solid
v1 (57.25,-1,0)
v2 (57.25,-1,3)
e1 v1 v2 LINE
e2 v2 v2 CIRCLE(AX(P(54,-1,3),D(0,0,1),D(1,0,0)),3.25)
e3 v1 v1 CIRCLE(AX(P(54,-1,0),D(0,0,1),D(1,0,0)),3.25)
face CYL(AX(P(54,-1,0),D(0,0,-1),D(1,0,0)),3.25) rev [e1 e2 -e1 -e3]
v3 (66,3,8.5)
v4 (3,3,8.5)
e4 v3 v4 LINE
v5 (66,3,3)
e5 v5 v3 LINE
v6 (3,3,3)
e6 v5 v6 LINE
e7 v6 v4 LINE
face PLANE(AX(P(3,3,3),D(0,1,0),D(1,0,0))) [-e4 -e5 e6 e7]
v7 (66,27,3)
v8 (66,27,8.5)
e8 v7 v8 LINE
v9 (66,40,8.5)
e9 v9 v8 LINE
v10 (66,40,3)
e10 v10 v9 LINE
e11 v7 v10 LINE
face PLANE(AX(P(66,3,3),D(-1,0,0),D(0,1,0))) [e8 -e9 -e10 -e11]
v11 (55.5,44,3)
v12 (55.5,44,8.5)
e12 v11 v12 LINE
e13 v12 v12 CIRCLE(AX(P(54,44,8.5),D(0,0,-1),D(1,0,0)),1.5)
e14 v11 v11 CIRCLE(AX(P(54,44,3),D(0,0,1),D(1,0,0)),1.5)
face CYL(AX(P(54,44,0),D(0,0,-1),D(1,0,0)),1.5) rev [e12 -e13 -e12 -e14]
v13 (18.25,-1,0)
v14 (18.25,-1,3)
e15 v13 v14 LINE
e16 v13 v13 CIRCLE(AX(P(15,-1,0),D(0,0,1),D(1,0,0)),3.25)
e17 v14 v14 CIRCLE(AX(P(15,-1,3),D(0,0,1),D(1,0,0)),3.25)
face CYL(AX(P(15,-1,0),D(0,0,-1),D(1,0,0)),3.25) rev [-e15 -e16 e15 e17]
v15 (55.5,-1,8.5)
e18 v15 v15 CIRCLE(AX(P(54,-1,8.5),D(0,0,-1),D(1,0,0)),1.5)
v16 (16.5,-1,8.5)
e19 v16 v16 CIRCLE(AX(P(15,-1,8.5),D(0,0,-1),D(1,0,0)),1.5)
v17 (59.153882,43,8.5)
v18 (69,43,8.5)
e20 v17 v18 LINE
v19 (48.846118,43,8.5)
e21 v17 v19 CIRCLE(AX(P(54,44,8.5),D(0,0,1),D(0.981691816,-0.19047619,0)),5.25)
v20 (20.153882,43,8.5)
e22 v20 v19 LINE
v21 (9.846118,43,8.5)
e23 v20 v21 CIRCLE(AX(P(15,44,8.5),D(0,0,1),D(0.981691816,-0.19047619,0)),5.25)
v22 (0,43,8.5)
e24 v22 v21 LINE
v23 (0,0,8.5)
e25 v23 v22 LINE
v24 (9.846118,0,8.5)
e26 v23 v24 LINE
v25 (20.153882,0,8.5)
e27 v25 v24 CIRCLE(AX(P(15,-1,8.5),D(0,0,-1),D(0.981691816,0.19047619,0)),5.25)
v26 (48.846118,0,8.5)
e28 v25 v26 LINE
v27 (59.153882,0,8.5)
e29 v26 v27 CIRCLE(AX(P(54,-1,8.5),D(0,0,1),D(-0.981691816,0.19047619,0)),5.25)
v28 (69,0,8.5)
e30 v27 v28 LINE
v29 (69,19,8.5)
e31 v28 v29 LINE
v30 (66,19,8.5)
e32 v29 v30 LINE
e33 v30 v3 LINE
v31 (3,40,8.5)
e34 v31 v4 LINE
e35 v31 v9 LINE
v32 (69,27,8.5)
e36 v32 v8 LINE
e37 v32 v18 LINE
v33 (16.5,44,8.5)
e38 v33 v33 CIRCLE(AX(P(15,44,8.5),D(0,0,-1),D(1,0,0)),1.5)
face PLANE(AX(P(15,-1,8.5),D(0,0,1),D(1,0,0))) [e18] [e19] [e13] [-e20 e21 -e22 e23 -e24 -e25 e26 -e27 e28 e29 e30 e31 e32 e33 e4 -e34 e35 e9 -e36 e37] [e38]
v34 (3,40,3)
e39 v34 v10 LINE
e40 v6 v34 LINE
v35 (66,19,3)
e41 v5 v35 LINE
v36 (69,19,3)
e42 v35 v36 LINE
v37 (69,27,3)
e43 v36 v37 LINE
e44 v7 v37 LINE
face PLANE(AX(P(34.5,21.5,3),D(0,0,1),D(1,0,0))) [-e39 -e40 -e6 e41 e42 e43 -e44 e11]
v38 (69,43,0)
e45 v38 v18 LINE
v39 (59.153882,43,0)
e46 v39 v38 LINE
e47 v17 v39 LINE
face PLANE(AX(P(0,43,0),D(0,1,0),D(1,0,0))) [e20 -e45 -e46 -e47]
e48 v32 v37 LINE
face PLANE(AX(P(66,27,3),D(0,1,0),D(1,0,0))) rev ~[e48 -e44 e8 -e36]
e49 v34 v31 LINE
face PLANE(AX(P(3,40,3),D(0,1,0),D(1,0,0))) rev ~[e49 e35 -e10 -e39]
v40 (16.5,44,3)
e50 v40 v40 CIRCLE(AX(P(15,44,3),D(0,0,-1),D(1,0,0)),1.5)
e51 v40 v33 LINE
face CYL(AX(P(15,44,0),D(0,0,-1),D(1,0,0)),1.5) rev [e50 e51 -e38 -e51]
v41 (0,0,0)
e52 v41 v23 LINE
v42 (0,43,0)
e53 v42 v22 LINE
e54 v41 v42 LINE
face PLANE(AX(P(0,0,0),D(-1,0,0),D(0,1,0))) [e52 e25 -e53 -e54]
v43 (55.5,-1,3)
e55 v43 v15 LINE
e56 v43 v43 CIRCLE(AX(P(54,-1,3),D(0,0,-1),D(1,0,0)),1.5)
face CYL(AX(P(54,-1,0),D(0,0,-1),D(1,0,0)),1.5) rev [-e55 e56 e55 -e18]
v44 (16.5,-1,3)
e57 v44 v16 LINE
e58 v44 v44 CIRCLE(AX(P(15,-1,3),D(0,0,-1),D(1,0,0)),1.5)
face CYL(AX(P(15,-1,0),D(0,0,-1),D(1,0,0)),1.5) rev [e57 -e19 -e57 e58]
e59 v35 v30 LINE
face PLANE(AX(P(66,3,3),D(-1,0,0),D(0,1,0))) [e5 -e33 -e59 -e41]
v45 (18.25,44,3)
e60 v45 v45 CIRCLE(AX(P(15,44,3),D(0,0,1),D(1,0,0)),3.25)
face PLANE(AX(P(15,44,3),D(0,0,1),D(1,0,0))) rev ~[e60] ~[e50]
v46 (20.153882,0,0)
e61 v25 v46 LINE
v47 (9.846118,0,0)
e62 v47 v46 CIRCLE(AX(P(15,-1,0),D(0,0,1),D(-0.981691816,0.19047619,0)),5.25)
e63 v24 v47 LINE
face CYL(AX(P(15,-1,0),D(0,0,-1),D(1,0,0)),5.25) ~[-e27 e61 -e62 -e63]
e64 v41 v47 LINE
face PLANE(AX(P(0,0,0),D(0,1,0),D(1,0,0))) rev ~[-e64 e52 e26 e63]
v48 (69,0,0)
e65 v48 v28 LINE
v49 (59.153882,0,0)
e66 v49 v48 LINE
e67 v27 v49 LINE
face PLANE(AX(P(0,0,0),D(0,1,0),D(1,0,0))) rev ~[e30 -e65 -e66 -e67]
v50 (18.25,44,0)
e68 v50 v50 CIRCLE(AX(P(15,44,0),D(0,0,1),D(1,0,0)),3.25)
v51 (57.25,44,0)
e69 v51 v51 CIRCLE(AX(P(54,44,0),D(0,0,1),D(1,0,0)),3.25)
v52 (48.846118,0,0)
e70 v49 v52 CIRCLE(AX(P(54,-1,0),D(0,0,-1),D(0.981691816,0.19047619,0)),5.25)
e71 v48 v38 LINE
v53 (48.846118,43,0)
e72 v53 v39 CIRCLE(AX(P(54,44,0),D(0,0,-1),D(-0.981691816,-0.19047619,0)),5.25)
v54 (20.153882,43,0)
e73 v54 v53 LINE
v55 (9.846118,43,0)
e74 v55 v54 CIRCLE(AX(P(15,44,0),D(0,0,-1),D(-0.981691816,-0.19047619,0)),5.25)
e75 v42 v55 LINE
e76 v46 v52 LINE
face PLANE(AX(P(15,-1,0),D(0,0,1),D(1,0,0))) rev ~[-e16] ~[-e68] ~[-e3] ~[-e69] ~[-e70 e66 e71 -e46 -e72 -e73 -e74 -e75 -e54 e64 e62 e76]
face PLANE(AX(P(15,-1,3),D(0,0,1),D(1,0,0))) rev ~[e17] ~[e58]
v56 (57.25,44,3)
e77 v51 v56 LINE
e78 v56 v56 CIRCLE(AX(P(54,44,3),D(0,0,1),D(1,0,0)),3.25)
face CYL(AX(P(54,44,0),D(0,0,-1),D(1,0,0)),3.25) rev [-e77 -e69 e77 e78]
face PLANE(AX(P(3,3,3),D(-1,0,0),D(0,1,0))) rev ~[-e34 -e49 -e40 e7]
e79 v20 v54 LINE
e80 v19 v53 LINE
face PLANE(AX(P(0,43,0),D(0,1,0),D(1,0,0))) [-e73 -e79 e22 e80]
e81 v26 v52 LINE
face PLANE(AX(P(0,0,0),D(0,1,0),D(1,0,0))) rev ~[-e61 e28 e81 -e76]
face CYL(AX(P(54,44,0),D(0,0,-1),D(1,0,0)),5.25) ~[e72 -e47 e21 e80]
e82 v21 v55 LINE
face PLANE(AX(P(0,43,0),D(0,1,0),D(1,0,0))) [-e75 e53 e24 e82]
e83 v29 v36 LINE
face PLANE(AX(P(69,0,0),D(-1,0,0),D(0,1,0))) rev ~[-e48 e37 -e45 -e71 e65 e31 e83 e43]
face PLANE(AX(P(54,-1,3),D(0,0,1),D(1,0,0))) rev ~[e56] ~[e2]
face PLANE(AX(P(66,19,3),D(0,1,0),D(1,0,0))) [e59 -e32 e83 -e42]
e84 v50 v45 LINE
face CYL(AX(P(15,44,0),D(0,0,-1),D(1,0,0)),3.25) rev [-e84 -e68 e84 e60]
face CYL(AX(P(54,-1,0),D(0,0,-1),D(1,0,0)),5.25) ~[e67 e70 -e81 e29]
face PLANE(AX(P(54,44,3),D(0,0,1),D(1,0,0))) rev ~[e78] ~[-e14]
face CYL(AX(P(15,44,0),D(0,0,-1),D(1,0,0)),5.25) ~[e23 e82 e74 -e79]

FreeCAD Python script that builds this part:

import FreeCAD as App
import Part
import Sketcher
Q = App.Units.Quantity


def add_polygon(sketch, points):
    """Adds a closed chain of lines whose ends are joined by coincident constraints."""
    first, n = sketch.GeometryCount, len(points)
    for a, b in zip(points, points[1:] + points[:1]):
        sketch.addGeometry(Part.LineSegment(App.Vector(*a, 0), App.Vector(*b, 0)), False)
    for i in range(n):
        sketch.addConstraint(Sketcher.Constraint("Coincident", first + i, 2, first + (i + 1) % n, 1))

doc = App.newDocument("Part")
params = doc.addObject("Spreadsheet::Sheet", "Params")
for row, (alias, value) in enumerate([
    ("sketch1_width", "63 mm"),
    ("sketch1_height", "37 mm"),
    ("pad1_length", "5.5 mm"),
    ("sketch2_width", "10 mm"),
    ("sketch2_height", "8 mm"),
    ("pad2_length", "5.5 mm"),
    ("sketch3_diameter", "6.5 mm"),
    ("pad3_length", "3 mm"),
    ("sketch4_diameter", "3 mm"),
    ("pad4_length", "8.5 mm"),
    ("sketch5_diameter", "10.5 mm"),
    ("pad5_length", "8.5 mm"),
    ("sketch6_diameter", "6.5 mm"),
    ("pad6_length", "3 mm"),
    ("sketch7_diameter", "3 mm"),
    ("pad7_length", "8.5 mm"),
    ("sketch8_diameter", "10.5 mm"),
    ("pad8_length", "8.5 mm"),
    ("sketch9_diameter", "6.5 mm"),
    ("pad9_length", "3 mm"),
    ("sketch10_diameter", "3 mm"),
    ("pad10_length", "8.5 mm"),
    ("sketch11_diameter", "10.5 mm"),
    ("pad11_length", "8.5 mm"),
    ("sketch12_diameter", "6.5 mm"),
    ("pad12_length", "3 mm"),
    ("sketch13_diameter", "3 mm"),
    ("pad13_length", "8.5 mm"),
    ("sketch14_diameter", "10.5 mm"),
    ("pad14_length", "8.5 mm"),
    ("sketch15_diameter", "6.5 mm"),
    ("pad15_length", "3 mm"),
    ("sketch16_diameter", "3 mm"),
    ("pad16_length", "8.5 mm"),
    ("sketch17_diameter", "6.5 mm"),
    ("pad17_length", "3 mm"),
    ("sketch18_diameter", "3 mm"),
    ("pad18_length", "8.5 mm"),
    ("sketch19_diameter", "6.5 mm"),
    ("pad19_length", "3 mm"),
    ("sketch20_diameter", "3 mm"),
    ("pad20_length", "8.5 mm"),
    ("sketch21_diameter", "6.5 mm"),
    ("pad21_length", "3 mm"),
    ("sketch22_diameter", "3 mm"),
    ("pad22_length", "8.5 mm"),
    ("sketch23_width", "63 mm"),
    ("sketch23_height", "37 mm"),
    ("pad23_length", "6 mm"),
    ("sketch24_width", "10 mm"),
    ("sketch24_height", "8 mm"),
    ("pad24_length", "6 mm"),
    ("sketch25_width", "69 mm"),
    ("sketch25_height", "43 mm"),
    ("pad25_length", "8.5 mm"),
], start=1):
    params.set(f"A{row}", alias)
    params.set(f"B{row}", "=" + value)
    params.setAlias(f"B{row}", alias)

body = doc.addObject("PartDesign::Body", "Body")

sketch1 = body.newObject("Sketcher::SketchObject", "Sketch")
sketch1.AttachmentSupport = (doc.getObject("XY_Plane"), [""])
sketch1.MapMode = "FlatFace"
add_polygon(sketch1, [(0, 37), (0, 0), (63, 0), (63, 37)])
sketch1.addConstraint([
    Sketcher.Constraint("Vertical", 0),
    Sketcher.Constraint("Horizontal", 1),
    Sketcher.Constraint("Vertical", 2),
    Sketcher.Constraint("Horizontal", 3),
    Sketcher.Constraint("Coincident", 0, 2, -1, 1),
    Sketcher.Constraint("DistanceX", 1, 1, 1, 2, Q("63 mm")),
    Sketcher.Constraint("DistanceY", 0, 2, 0, 1, Q("37 mm")),
])
sketch1.setExpression("Constraints[9]", "Params.sketch1_width")
sketch1.setExpression("Constraints[10]", "Params.sketch1_height")
pad1 = body.newObject("PartDesign::Pad", "Pad")
pad1.Profile = sketch1
pad1.setExpression("Length", "Params.pad1_length")
body2 = doc.addObject("PartDesign::Body", "Body001")

sketch2 = body2.newObject("Sketcher::SketchObject", "Sketch001")
sketch2.AttachmentSupport = (doc.getObject("XY_Plane001"), [""])
sketch2.MapMode = "FlatFace"
add_polygon(sketch2, [(63, 24), (63, 16), (73, 16), (73, 24)])
sketch2.addConstraint([
    Sketcher.Constraint("Vertical", 0),
    Sketcher.Constraint("Horizontal", 1),
    Sketcher.Constraint("Vertical", 2),
    Sketcher.Constraint("Horizontal", 3),
    Sketcher.Constraint("DistanceX", 1, 1, 1, 2, Q("10 mm")),
    Sketcher.Constraint("DistanceY", 0, 2, 0, 1, Q("8 mm")),
    Sketcher.Constraint("DistanceX", -1, 1, 0, 2, Q("63 mm")),
    Sketcher.Constraint("DistanceY", -1, 1, 0, 2, Q("16 mm")),
])
sketch2.setExpression("Constraints[8]", "Params.sketch2_width")
sketch2.setExpression("Constraints[9]", "Params.sketch2_height")
pad2 = body2.newObject("PartDesign::Pad", "Pad001")
pad2.Profile = sketch2
pad2.setExpression("Length", "Params.pad2_length")
doc.recompute()

boolean = body2.newObject("PartDesign::Boolean", "Boolean")
boolean.Type = "Fuse"
boolean.addObjects([body])
body3 = doc.addObject("PartDesign::Body", "Body002")
doc.recompute()

body2.Placement = App.Placement(App.Vector(3, 3, 3), App.Rotation(App.Vector(0, 0, 1), 0))
boolean2 = body3.newObject("PartDesign::Boolean", "Boolean001")
boolean2.Type = "Fuse"
boolean2.addObjects([body2])
body4 = doc.addObject("PartDesign::Body", "Body003")

sketch3 = body4.newObject("Sketcher::SketchObject", "Sketch002")
sketch3.AttachmentSupport = (doc.getObject("XY_Plane003"), [""])
sketch3.MapMode = "FlatFace"
sketch3.addGeometry(Part.Circle(App.Vector(15, -1, 0), App.Vector(0, 0, 1), 3.25), False)
sketch3.addConstraint([
    Sketcher.Constraint("Diameter", 0, Q("6.5 mm")),
    Sketcher.Constraint("DistanceX", -1, 1, 0, 3, Q("15 mm")),
    Sketcher.Constraint("DistanceY", 0, 3, -1, 1, Q("1 mm")),
])
sketch3.setExpression("Constraints[0]", "Params.sketch3_diameter")
pad3 = body4.newObject("PartDesign::Pad", "Pad002")
pad3.Profile = sketch3
pad3.setExpression("Length", "Params.pad3_length")
body5 = doc.addObject("PartDesign::Body", "Body004")

sketch4 = body5.newObject("Sketcher::SketchObject", "Sketch003")
sketch4.AttachmentSupport = (doc.getObject("XY_Plane004"), [""])
sketch4.MapMode = "FlatFace"
sketch4.addGeometry(Part.Circle(App.Vector(15, -1, 0), App.Vector(0, 0, 1), 1.5), False)
sketch4.addConstraint([
    Sketcher.Constraint("Diameter", 0, Q("3 mm")),
    Sketcher.Constraint("DistanceX", -1, 1, 0, 3, Q("15 mm")),
    Sketcher.Constraint("DistanceY", 0, 3, -1, 1, Q("1 mm")),
])
sketch4.setExpression("Constraints[0]", "Params.sketch4_diameter")
pad4 = body5.newObject("PartDesign::Pad", "Pad003")
pad4.Profile = sketch4
pad4.setExpression("Length", "Params.pad4_length")
doc.recompute()

boolean3 = body5.newObject("PartDesign::Boolean", "Boolean002")
boolean3.Type = "Fuse"
boolean3.addObjects([body4])
body6 = doc.addObject("PartDesign::Body", "Body005")

sketch5 = body6.newObject("Sketcher::SketchObject", "Sketch004")
sketch5.AttachmentSupport = (doc.getObject("XY_Plane005"), [""])
sketch5.MapMode = "FlatFace"
sketch5.addGeometry(Part.Circle(App.Vector(15, -1, 0), App.Vector(0, 0, 1), 5.25), False)
sketch5.addConstraint([
    Sketcher.Constraint("Diameter", 0, Q("10.5 mm")),
    Sketcher.Constraint("DistanceX", -1, 1, 0, 3, Q("15 mm")),
    Sketcher.Constraint("DistanceY", 0, 3, -1, 1, Q("1 mm")),
])
sketch5.setExpression("Constraints[0]", "Params.sketch5_diameter")
pad5 = body6.newObject("PartDesign::Pad", "Pad004")
pad5.Profile = sketch5
pad5.setExpression("Length", "Params.pad5_length")
doc.recompute()

boolean4 = body6.newObject("PartDesign::Boolean", "Boolean003")
boolean4.Type = "Cut"
boolean4.addObjects([body5])
body7 = doc.addObject("PartDesign::Body", "Body006")
doc.recompute()

body6.Placement = App.Placement(App.Vector(39, 45, 0), App.Rotation(App.Vector(0, 0, 1), 0))
boolean5 = body7.newObject("PartDesign::Boolean", "Boolean004")
boolean5.Type = "Fuse"
boolean5.addObjects([body6])
body8 = doc.addObject("PartDesign::Body", "Body007")

sketch6 = body8.newObject("Sketcher::SketchObject", "Sketch005")
sketch6.AttachmentSupport = (doc.getObject("XY_Plane007"), [""])
sketch6.MapMode = "FlatFace"
sketch6.addGeometry(Part.Circle(App.Vector(15, -1, 0), App.Vector(0, 0, 1), 3.25), False)
sketch6.addConstraint([
    Sketcher.Constraint("Diameter", 0, Q("6.5 mm")),
    Sketcher.Constraint("DistanceX", -1, 1, 0, 3, Q("15 mm")),
    Sketcher.Constraint("DistanceY", 0, 3, -1, 1, Q("1 mm")),
])
sketch6.setExpression("Constraints[0]", "Params.sketch6_diameter")
pad6 = body8.newObject("PartDesign::Pad", "Pad005")
pad6.Profile = sketch6
pad6.setExpression("Length", "Params.pad6_length")
body9 = doc.addObject("PartDesign::Body", "Body008")

sketch7 = body9.newObject("Sketcher::SketchObject", "Sketch006")
sketch7.AttachmentSupport = (doc.getObject("XY_Plane008"), [""])
sketch7.MapMode = "FlatFace"
sketch7.addGeometry(Part.Circle(App.Vector(15, -1, 0), App.Vector(0, 0, 1), 1.5), False)
sketch7.addConstraint([
    Sketcher.Constraint("Diameter", 0, Q("3 mm")),
    Sketcher.Constraint("DistanceX", -1, 1, 0, 3, Q("15 mm")),
    Sketcher.Constraint("DistanceY", 0, 3, -1, 1, Q("1 mm")),
])
sketch7.setExpression("Constraints[0]", "Params.sketch7_diameter")
pad7 = body9.newObject("PartDesign::Pad", "Pad006")
pad7.Profile = sketch7
pad7.setExpression("Length", "Params.pad7_length")
doc.recompute()

boolean6 = body9.newObject("PartDesign::Boolean", "Boolean005")
boolean6.Type = "Fuse"
boolean6.addObjects([body8])
body10 = doc.addObject("PartDesign::Body", "Body009")

sketch8 = body10.newObject("Sketcher::SketchObject", "Sketch007")
sketch8.AttachmentSupport = (doc.getObject("XY_Plane009"), [""])
sketch8.MapMode = "FlatFace"
sketch8.addGeometry(Part.Circle(App.Vector(15, -1, 0), App.Vector(0, 0, 1), 5.25), False)
sketch8.addConstraint([
    Sketcher.Constraint("Diameter", 0, Q("10.5 mm")),
    Sketcher.Constraint("DistanceX", -1, 1, 0, 3, Q("15 mm")),
    Sketcher.Constraint("DistanceY", 0, 3, -1, 1, Q("1 mm")),
])
sketch8.setExpression("Constraints[0]", "Params.sketch8_diameter")
pad8 = body10.newObject("PartDesign::Pad", "Pad007")
pad8.Profile = sketch8
pad8.setExpression("Length", "Params.pad8_length")
doc.recompute()

boolean7 = body10.newObject("PartDesign::Boolean", "Boolean006")
boolean7.Type = "Cut"
boolean7.addObjects([body9])
body11 = doc.addObject("PartDesign::Body", "Body010")
doc.recompute()

body10.Placement = App.Placement(App.Vector(39, 0, 0), App.Rotation(App.Vector(0, 0, 1), 0))
boolean8 = body11.newObject("PartDesign::Boolean", "Boolean007")
boolean8.Type = "Fuse"
boolean8.addObjects([body10])
body12 = doc.addObject("PartDesign::Body", "Body011")

sketch9 = body12.newObject("Sketcher::SketchObject", "Sketch008")
sketch9.AttachmentSupport = (doc.getObject("XY_Plane011"), [""])
sketch9.MapMode = "FlatFace"
sketch9.addGeometry(Part.Circle(App.Vector(15, -1, 0), App.Vector(0, 0, 1), 3.25), False)
sketch9.addConstraint([
    Sketcher.Constraint("Diameter", 0, Q("6.5 mm")),
    Sketcher.Constraint("DistanceX", -1, 1, 0, 3, Q("15 mm")),
    Sketcher.Constraint("DistanceY", 0, 3, -1, 1, Q("1 mm")),
])
sketch9.setExpression("Constraints[0]", "Params.sketch9_diameter")
pad9 = body12.newObject("PartDesign::Pad", "Pad008")
pad9.Profile = sketch9
pad9.setExpression("Length", "Params.pad9_length")
body13 = doc.addObject("PartDesign::Body", "Body012")

sketch10 = body13.newObject("Sketcher::SketchObject", "Sketch009")
sketch10.AttachmentSupport = (doc.getObject("XY_Plane012"), [""])
sketch10.MapMode = "FlatFace"
sketch10.addGeometry(Part.Circle(App.Vector(15, -1, 0), App.Vector(0, 0, 1), 1.5), False)
sketch10.addConstraint([
    Sketcher.Constraint("Diameter", 0, Q("3 mm")),
    Sketcher.Constraint("DistanceX", -1, 1, 0, 3, Q("15 mm")),
    Sketcher.Constraint("DistanceY", 0, 3, -1, 1, Q("1 mm")),
])
sketch10.setExpression("Constraints[0]", "Params.sketch10_diameter")
pad10 = body13.newObject("PartDesign::Pad", "Pad009")
pad10.Profile = sketch10
pad10.setExpression("Length", "Params.pad10_length")
doc.recompute()

boolean9 = body13.newObject("PartDesign::Boolean", "Boolean008")
boolean9.Type = "Fuse"
boolean9.addObjects([body12])
body14 = doc.addObject("PartDesign::Body", "Body013")

sketch11 = body14.newObject("Sketcher::SketchObject", "Sketch010")
sketch11.AttachmentSupport = (doc.getObject("XY_Plane013"), [""])
sketch11.MapMode = "FlatFace"
sketch11.addGeometry(Part.Circle(App.Vector(15, -1, 0), App.Vector(0, 0, 1), 5.25), False)
sketch11.addConstraint([
    Sketcher.Constraint("Diameter", 0, Q("10.5 mm")),
    Sketcher.Constraint("DistanceX", -1, 1, 0, 3, Q("15 mm")),
    Sketcher.Constraint("DistanceY", 0, 3, -1, 1, Q("1 mm")),
])
sketch11.setExpression("Constraints[0]", "Params.sketch11_diameter")
pad11 = body14.newObject("PartDesign::Pad", "Pad010")
pad11.Profile = sketch11
pad11.setExpression("Length", "Params.pad11_length")
doc.recompute()

boolean10 = body14.newObject("PartDesign::Boolean", "Boolean009")
boolean10.Type = "Cut"
boolean10.addObjects([body13])
body15 = doc.addObject("PartDesign::Body", "Body014")

sketch12 = body15.newObject("Sketcher::SketchObject", "Sketch011")
sketch12.AttachmentSupport = (doc.getObject("XY_Plane014"), [""])
sketch12.MapMode = "FlatFace"
sketch12.addGeometry(Part.Circle(App.Vector(15, -1, 0), App.Vector(0, 0, 1), 3.25), False)
sketch12.addConstraint([
    Sketcher.Constraint("Diameter", 0, Q("6.5 mm")),
    Sketcher.Constraint("DistanceX", -1, 1, 0, 3, Q("15 mm")),
    Sketcher.Constraint("DistanceY", 0, 3, -1, 1, Q("1 mm")),
])
sketch12.setExpression("Constraints[0]", "Params.sketch12_diameter")
pad12 = body15.newObject("PartDesign::Pad", "Pad011")
pad12.Profile = sketch12
pad12.setExpression("Length", "Params.pad12_length")
body16 = doc.addObject("PartDesign::Body", "Body015")

sketch13 = body16.newObject("Sketcher::SketchObject", "Sketch012")
sketch13.AttachmentSupport = (doc.getObject("XY_Plane015"), [""])
sketch13.MapMode = "FlatFace"
sketch13.addGeometry(Part.Circle(App.Vector(15, -1, 0), App.Vector(0, 0, 1), 1.5), False)
sketch13.addConstraint([
    Sketcher.Constraint("Diameter", 0, Q("3 mm")),
    Sketcher.Constraint("DistanceX", -1, 1, 0, 3, Q("15 mm")),
    Sketcher.Constraint("DistanceY", 0, 3, -1, 1, Q("1 mm")),
])
sketch13.setExpression("Constraints[0]", "Params.sketch13_diameter")
pad13 = body16.newObject("PartDesign::Pad", "Pad012")
pad13.Profile = sketch13
pad13.setExpression("Length", "Params.pad13_length")
doc.recompute()

boolean11 = body16.newObject("PartDesign::Boolean", "Boolean010")
boolean11.Type = "Fuse"
boolean11.addObjects([body15])
body17 = doc.addObject("PartDesign::Body", "Body016")

sketch14 = body17.newObject("Sketcher::SketchObject", "Sketch013")
sketch14.AttachmentSupport = (doc.getObject("XY_Plane016"), [""])
sketch14.MapMode = "FlatFace"
sketch14.addGeometry(Part.Circle(App.Vector(15, -1, 0), App.Vector(0, 0, 1), 5.25), False)
sketch14.addConstraint([
    Sketcher.Constraint("Diameter", 0, Q("10.5 mm")),
    Sketcher.Constraint("DistanceX", -1, 1, 0, 3, Q("15 mm")),
    Sketcher.Constraint("DistanceY", 0, 3, -1, 1, Q("1 mm")),
])
sketch14.setExpression("Constraints[0]", "Params.sketch14_diameter")
pad14 = body17.newObject("PartDesign::Pad", "Pad013")
pad14.Profile = sketch14
pad14.setExpression("Length", "Params.pad14_length")
doc.recompute()

boolean12 = body17.newObject("PartDesign::Boolean", "Boolean011")
boolean12.Type = "Cut"
boolean12.addObjects([body16])
body18 = doc.addObject("PartDesign::Body", "Body017")
body18.AllowCompound = True
doc.recompute()

body17.Placement = App.Placement(App.Vector(0, 45, 0), App.Rotation(App.Vector(0, 0, 1), 0))
boolean13 = body18.newObject("PartDesign::Boolean", "Boolean012")
boolean13.Type = "Fuse"
boolean13.addObjects([body17])
doc.recompute()

boolean14 = body18.newObject("PartDesign::Boolean", "Boolean013")
boolean14.Type = "Fuse"
boolean14.addObjects([body7])
doc.recompute()

boolean15 = body18.newObject("PartDesign::Boolean", "Boolean014")
boolean15.Type = "Fuse"
boolean15.addObjects([body11])
doc.recompute()

boolean16 = body18.newObject("PartDesign::Boolean", "Boolean015")
boolean16.Type = "Fuse"
boolean16.addObjects([body14])
doc.recompute()

boolean17 = body18.newObject("PartDesign::Boolean", "Boolean016")
boolean17.Type = "Cut"
boolean17.addObjects([body3])
body19 = doc.addObject("PartDesign::Body", "Body018")

sketch15 = body19.newObject("Sketcher::SketchObject", "Sketch014")
sketch15.AttachmentSupport = (doc.getObject("XY_Plane018"), [""])
sketch15.MapMode = "FlatFace"
sketch15.addGeometry(Part.Circle(App.Vector(15, -1, 0), App.Vector(0, 0, 1), 3.25), False)
sketch15.addConstraint([
    Sketcher.Constraint("Diameter", 0, Q("6.5 mm")),
    Sketcher.Constraint("DistanceX", -1, 1, 0, 3, Q("15 mm")),
    Sketcher.Constraint("DistanceY", 0, 3, -1, 1, Q("1 mm")),
])
sketch15.setExpression("Constraints[0]", "Params.sketch15_diameter")
pad15 = body19.newObject("PartDesign::Pad", "Pad014")
pad15.Profile = sketch15
pad15.setExpression("Length", "Params.pad15_length")
body20 = doc.addObject("PartDesign::Body", "Body019")

sketch16 = body20.newObject("Sketcher::SketchObject", "Sketch015")
sketch16.AttachmentSupport = (doc.getObject("XY_Plane019"), [""])
sketch16.MapMode = "FlatFace"
sketch16.addGeometry(Part.Circle(App.Vector(15, -1, 0), App.Vector(0, 0, 1), 1.5), False)
sketch16.addConstraint([
    Sketcher.Constraint("Diameter", 0, Q("3 mm")),
    Sketcher.Constraint("DistanceX", -1, 1, 0, 3, Q("15 mm")),
    Sketcher.Constraint("DistanceY", 0, 3, -1, 1, Q("1 mm")),
])
sketch16.setExpression("Constraints[0]", "Params.sketch16_diameter")
pad16 = body20.newObject("PartDesign::Pad", "Pad015")
pad16.Profile = sketch16
pad16.setExpression("Length", "Params.pad16_length")
doc.recompute()

boolean18 = body20.newObject("PartDesign::Boolean", "Boolean017")
boolean18.Type = "Fuse"
boolean18.addObjects([body19])
body21 = doc.addObject("PartDesign::Body", "Body020")

sketch17 = body21.newObject("Sketcher::SketchObject", "Sketch016")
sketch17.AttachmentSupport = (doc.getObject("XY_Plane020"), [""])
sketch17.MapMode = "FlatFace"
sketch17.addGeometry(Part.Circle(App.Vector(15, -1, 0), App.Vector(0, 0, 1), 3.25), False)
sketch17.addConstraint([
    Sketcher.Constraint("Diameter", 0, Q("6.5 mm")),
    Sketcher.Constraint("DistanceX", -1, 1, 0, 3, Q("15 mm")),
    Sketcher.Constraint("DistanceY", 0, 3, -1, 1, Q("1 mm")),
])
sketch17.setExpression("Constraints[0]", "Params.sketch17_diameter")
pad17 = body21.newObject("PartDesign::Pad", "Pad016")
pad17.Profile = sketch17
pad17.setExpression("Length", "Params.pad17_length")
body22 = doc.addObject("PartDesign::Body", "Body021")

sketch18 = body22.newObject("Sketcher::SketchObject", "Sketch017")
sketch18.AttachmentSupport = (doc.getObject("XY_Plane021"), [""])
sketch18.MapMode = "FlatFace"
sketch18.addGeometry(Part.Circle(App.Vector(15, -1, 0), App.Vector(0, 0, 1), 1.5), False)
sketch18.addConstraint([
    Sketcher.Constraint("Diameter", 0, Q("3 mm")),
    Sketcher.Constraint("DistanceX", -1, 1, 0, 3, Q("15 mm")),
    Sketcher.Constraint("DistanceY", 0, 3, -1, 1, Q("1 mm")),
])
sketch18.setExpression("Constraints[0]", "Params.sketch18_diameter")
pad18 = body22.newObject("PartDesign::Pad", "Pad017")
pad18.Profile = sketch18
pad18.setExpression("Length", "Params.pad18_length")
doc.recompute()

boolean19 = body22.newObject("PartDesign::Boolean", "Boolean018")
boolean19.Type = "Fuse"
boolean19.addObjects([body21])
body23 = doc.addObject("PartDesign::Body", "Body022")
doc.recompute()

body22.Placement = App.Placement(App.Vector(39, 0, 0), App.Rotation(App.Vector(0, 0, 1), 0))
boolean20 = body23.newObject("PartDesign::Boolean", "Boolean019")
boolean20.Type = "Fuse"
boolean20.addObjects([body22])
body24 = doc.addObject("PartDesign::Body", "Body023")

sketch19 = body24.newObject("Sketcher::SketchObject", "Sketch018")
sketch19.AttachmentSupport = (doc.getObject("XY_Plane023"), [""])
sketch19.MapMode = "FlatFace"
sketch19.addGeometry(Part.Circle(App.Vector(15, -1, 0), App.Vector(0, 0, 1), 3.25), False)
sketch19.addConstraint([
    Sketcher.Constraint("Diameter", 0, Q("6.5 mm")),
    Sketcher.Constraint("DistanceX", -1, 1, 0, 3, Q("15 mm")),
    Sketcher.Constraint("DistanceY", 0, 3, -1, 1, Q("1 mm")),
])
sketch19.setExpression("Constraints[0]", "Params.sketch19_diameter")
pad19 = body24.newObject("PartDesign::Pad", "Pad018")
pad19.Profile = sketch19
pad19.setExpression("Length", "Params.pad19_length")
body25 = doc.addObject("PartDesign::Body", "Body024")

sketch20 = body25.newObject("Sketcher::SketchObject", "Sketch019")
sketch20.AttachmentSupport = (doc.getObject("XY_Plane024"), [""])
sketch20.MapMode = "FlatFace"
sketch20.addGeometry(Part.Circle(App.Vector(15, -1, 0), App.Vector(0, 0, 1), 1.5), False)
sketch20.addConstraint([
    Sketcher.Constraint("Diameter", 0, Q("3 mm")),
    Sketcher.Constraint("DistanceX", -1, 1, 0, 3, Q("15 mm")),
    Sketcher.Constraint("DistanceY", 0, 3, -1, 1, Q("1 mm")),
])
sketch20.setExpression("Constraints[0]", "Params.sketch20_diameter")
pad20 = body25.newObject("PartDesign::Pad", "Pad019")
pad20.Profile = sketch20
pad20.setExpression("Length", "Params.pad20_length")
doc.recompute()

boolean21 = body25.newObject("PartDesign::Boolean", "Boolean020")
boolean21.Type = "Fuse"
boolean21.addObjects([body24])
body26 = doc.addObject("PartDesign::Body", "Body025")
doc.recompute()

body25.Placement = App.Placement(App.Vector(39, 45, 0), App.Rotation(App.Vector(0, 0, 1), 0))
boolean22 = body26.newObject("PartDesign::Boolean", "Boolean021")
boolean22.Type = "Fuse"
boolean22.addObjects([body25])
body27 = doc.addObject("PartDesign::Body", "Body026")

sketch21 = body27.newObject("Sketcher::SketchObject", "Sketch020")
sketch21.AttachmentSupport = (doc.getObject("XY_Plane026"), [""])
sketch21.MapMode = "FlatFace"
sketch21.addGeometry(Part.Circle(App.Vector(15, -1, 0), App.Vector(0, 0, 1), 3.25), False)
sketch21.addConstraint([
    Sketcher.Constraint("Diameter", 0, Q("6.5 mm")),
    Sketcher.Constraint("DistanceX", -1, 1, 0, 3, Q("15 mm")),
    Sketcher.Constraint("DistanceY", 0, 3, -1, 1, Q("1 mm")),
])
sketch21.setExpression("Constraints[0]", "Params.sketch21_diameter")
pad21 = body27.newObject("PartDesign::Pad", "Pad020")
pad21.Profile = sketch21
pad21.setExpression("Length", "Params.pad21_length")
body28 = doc.addObject("PartDesign::Body", "Body027")

sketch22 = body28.newObject("Sketcher::SketchObject", "Sketch021")
sketch22.AttachmentSupport = (doc.getObject("XY_Plane027"), [""])
sketch22.MapMode = "FlatFace"
sketch22.addGeometry(Part.Circle(App.Vector(15, -1, 0), App.Vector(0, 0, 1), 1.5), False)
sketch22.addConstraint([
    Sketcher.Constraint("Diameter", 0, Q("3 mm")),
    Sketcher.Constraint("DistanceX", -1, 1, 0, 3, Q("15 mm")),
    Sketcher.Constraint("DistanceY", 0, 3, -1, 1, Q("1 mm")),
])
sketch22.setExpression("Constraints[0]", "Params.sketch22_diameter")
pad22 = body28.newObject("PartDesign::Pad", "Pad021")
pad22.Profile = sketch22
pad22.setExpression("Length", "Params.pad22_length")
doc.recompute()

boolean23 = body28.newObject("PartDesign::Boolean", "Boolean022")
boolean23.Type = "Fuse"
boolean23.addObjects([body27])
body29 = doc.addObject("PartDesign::Body", "Body028")
body29.AllowCompound = True
doc.recompute()

body28.Placement = App.Placement(App.Vector(0, 45, 0), App.Rotation(App.Vector(0, 0, 1), 0))
boolean24 = body29.newObject("PartDesign::Boolean", "Boolean023")
boolean24.Type = "Fuse"
boolean24.addObjects([body28])
doc.recompute()

boolean25 = body29.newObject("PartDesign::Boolean", "Boolean024")
boolean25.Type = "Fuse"
boolean25.addObjects([body20])
doc.recompute()

boolean26 = body29.newObject("PartDesign::Boolean", "Boolean025")
boolean26.Type = "Fuse"
boolean26.addObjects([body23])
doc.recompute()

boolean27 = body29.newObject("PartDesign::Boolean", "Boolean026")
boolean27.Type = "Fuse"
boolean27.addObjects([body26])
body30 = doc.addObject("PartDesign::Body", "Body029")

sketch23 = body30.newObject("Sketcher::SketchObject", "Sketch022")
sketch23.AttachmentSupport = (doc.getObject("XY_Plane029"), [""])
sketch23.MapMode = "FlatFace"
add_polygon(sketch23, [(0, 37), (0, 0), (63, 0), (63, 37)])
sketch23.addConstraint([
    Sketcher.Constraint("Vertical", 0),
    Sketcher.Constraint("Horizontal", 1),
    Sketcher.Constraint("Vertical", 2),
    Sketcher.Constraint("Horizontal", 3),
    Sketcher.Constraint("Coincident", 0, 2, -1, 1),
    Sketcher.Constraint("DistanceX", 1, 1, 1, 2, Q("63 mm")),
    Sketcher.Constraint("DistanceY", 0, 2, 0, 1, Q("37 mm")),
])
sketch23.setExpression("Constraints[9]", "Params.sketch23_width")
sketch23.setExpression("Constraints[10]", "Params.sketch23_height")
pad23 = body30.newObject("PartDesign::Pad", "Pad022")
pad23.Profile = sketch23
pad23.setExpression("Length", "Params.pad23_length")
body31 = doc.addObject("PartDesign::Body", "Body030")

sketch24 = body31.newObject("Sketcher::SketchObject", "Sketch023")
sketch24.AttachmentSupport = (doc.getObject("XY_Plane030"), [""])
sketch24.MapMode = "FlatFace"
add_polygon(sketch24, [(63, 24), (63, 16), (73, 16), (73, 24)])
sketch24.addConstraint([
    Sketcher.Constraint("Vertical", 0),
    Sketcher.Constraint("Horizontal", 1),
    Sketcher.Constraint("Vertical", 2),
    Sketcher.Constraint("Horizontal", 3),
    Sketcher.Constraint("DistanceX", 1, 1, 1, 2, Q("10 mm")),
    Sketcher.Constraint("DistanceY", 0, 2, 0, 1, Q("8 mm")),
    Sketcher.Constraint("DistanceX", -1, 1, 0, 2, Q("63 mm")),
    Sketcher.Constraint("DistanceY", -1, 1, 0, 2, Q("16 mm")),
])
sketch24.setExpression("Constraints[8]", "Params.sketch24_width")
sketch24.setExpression("Constraints[9]", "Params.sketch24_height")
pad24 = body31.newObject("PartDesign::Pad", "Pad023")
pad24.Profile = sketch24
pad24.setExpression("Length", "Params.pad24_length")
doc.recompute()

boolean28 = body31.newObject("PartDesign::Boolean", "Boolean027")
boolean28.Type = "Fuse"
boolean28.addObjects([body30])
body32 = doc.addObject("PartDesign::Body", "Body031")
doc.recompute()

body31.Placement = App.Placement(App.Vector(3, 3, 3), App.Rotation(App.Vector(0, 0, 1), 0))
boolean29 = body32.newObject("PartDesign::Boolean", "Boolean028")
boolean29.Type = "Fuse"
boolean29.addObjects([body31])
body33 = doc.addObject("PartDesign::Body", "Body032")

sketch25 = body33.newObject("Sketcher::SketchObject", "Sketch024")
sketch25.AttachmentSupport = (doc.getObject("XY_Plane032"), [""])
sketch25.MapMode = "FlatFace"
add_polygon(sketch25, [(0, 43), (0, 0), (69, 0), (69, 43)])
sketch25.addConstraint([
    Sketcher.Constraint("Vertical", 0),
    Sketcher.Constraint("Horizontal", 1),
    Sketcher.Constraint("Vertical", 2),
    Sketcher.Constraint("Horizontal", 3),
    Sketcher.Constraint("Coincident", 0, 2, -1, 1),
    Sketcher.Constraint("DistanceX", 1, 1, 1, 2, Q("69 mm")),
    Sketcher.Constraint("DistanceY", 0, 2, 0, 1, Q("43 mm")),
])
sketch25.setExpression("Constraints[9]", "Params.sketch25_width")
sketch25.setExpression("Constraints[10]", "Params.sketch25_height")
pad25 = body33.newObject("PartDesign::Pad", "Pad024")
pad25.Profile = sketch25
pad25.setExpression("Length", "Params.pad25_length")
doc.recompute()

boolean30 = body33.newObject("PartDesign::Boolean", "Boolean029")
boolean30.Type = "Cut"
boolean30.addObjects([body32])
doc.recompute()

boolean31 = body33.newObject("PartDesign::Boolean", "Boolean030")
boolean31.Type = "Cut"
boolean31.addObjects([body29])
doc.recompute()

boolean32 = body33.newObject("PartDesign::Boolean", "Boolean031")
boolean32.Type = "Fuse"
boolean32.addObjects([body18])

doc.recompute()
